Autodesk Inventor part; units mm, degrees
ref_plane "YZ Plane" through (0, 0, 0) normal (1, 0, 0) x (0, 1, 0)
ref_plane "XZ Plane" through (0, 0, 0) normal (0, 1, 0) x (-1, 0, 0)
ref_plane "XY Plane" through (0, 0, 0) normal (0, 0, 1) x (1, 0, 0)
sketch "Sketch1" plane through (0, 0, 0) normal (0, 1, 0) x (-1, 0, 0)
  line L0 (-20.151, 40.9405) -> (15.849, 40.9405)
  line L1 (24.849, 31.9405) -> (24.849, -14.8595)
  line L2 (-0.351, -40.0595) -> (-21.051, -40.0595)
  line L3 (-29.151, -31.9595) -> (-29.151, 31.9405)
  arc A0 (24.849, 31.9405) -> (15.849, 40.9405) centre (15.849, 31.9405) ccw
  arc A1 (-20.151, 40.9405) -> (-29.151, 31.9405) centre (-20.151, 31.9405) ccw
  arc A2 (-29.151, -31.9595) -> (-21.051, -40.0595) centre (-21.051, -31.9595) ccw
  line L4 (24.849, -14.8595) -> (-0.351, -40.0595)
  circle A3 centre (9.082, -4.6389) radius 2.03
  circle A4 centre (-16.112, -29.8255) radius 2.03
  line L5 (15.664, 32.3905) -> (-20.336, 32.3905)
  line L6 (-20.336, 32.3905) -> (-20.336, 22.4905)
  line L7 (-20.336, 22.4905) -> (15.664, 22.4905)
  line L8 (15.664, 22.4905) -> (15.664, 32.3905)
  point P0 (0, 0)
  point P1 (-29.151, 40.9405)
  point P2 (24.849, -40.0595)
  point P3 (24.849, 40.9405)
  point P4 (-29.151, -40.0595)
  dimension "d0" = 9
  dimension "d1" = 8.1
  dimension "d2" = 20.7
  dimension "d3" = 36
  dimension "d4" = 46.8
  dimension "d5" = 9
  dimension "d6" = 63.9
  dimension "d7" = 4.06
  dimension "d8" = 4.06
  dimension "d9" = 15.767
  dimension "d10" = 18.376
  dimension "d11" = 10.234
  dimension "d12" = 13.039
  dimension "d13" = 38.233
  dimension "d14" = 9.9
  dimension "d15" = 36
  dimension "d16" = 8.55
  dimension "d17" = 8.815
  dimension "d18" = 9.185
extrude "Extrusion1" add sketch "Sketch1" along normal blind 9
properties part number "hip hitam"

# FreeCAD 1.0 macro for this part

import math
import FreeCAD as App
import Part
import Sketcher
from FreeCAD import Vector
Q = App.Units.Quantity


def add_polygon(sketch, points):
    """Adds a closed chain of lines whose ends are joined by coincident constraints."""
    first, n = sketch.GeometryCount, len(points)
    for a, b in zip(points, points[1:] + points[:1]):
        sketch.addGeometry(Part.LineSegment(App.Vector(*a, 0), App.Vector(*b, 0)), False)
    for i in range(n):
        sketch.addConstraint(Sketcher.Constraint("Coincident", first + i, 2, first + (i + 1) % n, 1))

doc = App.newDocument("Part")
body = doc.addObject("PartDesign::Body", "Body")

sketch1 = doc.addObject("Sketcher::SketchObject", "Sketch")
body.addObject(sketch1)
sketch1.AttachmentSupport = (doc.XZ_Plane, [""])
sketch1.MapMode = "FlatFace"
sketch1.addGeometry(Part.LineSegment(Vector(-15.8, 40.9, 0), Vector(20.2, 40.9, 0)), False)
sketch1.addGeometry(Part.ArcOfCircle(Part.Circle(Vector(20.2, 31.9, 0), Vector(0, 0, 1), 9), math.radians(0), math.radians(90)), False)
sketch1.addGeometry(Part.LineSegment(Vector(29.2, 31.9, 0), Vector(29.2, -32, 0)), False)
sketch1.addGeometry(Part.ArcOfCircle(Part.Circle(Vector(21.1, -32, 0), Vector(0, 0, 1), 8.1), math.radians(-90), math.radians(0)), False)
sketch1.addGeometry(Part.LineSegment(Vector(21.1, -40.1, 0), Vector(0.4, -40.1, 0)), False)
sketch1.addGeometry(Part.LineSegment(Vector(0.4, -40.1, 0), Vector(-24.8, -14.9, 0)), False)
sketch1.addGeometry(Part.LineSegment(Vector(-24.8, -14.9, 0), Vector(-24.8, 31.9, 0)), False)
sketch1.addGeometry(Part.ArcOfCircle(Part.Circle(Vector(-15.8, 31.9, 0), Vector(0, 0, 1), 9), math.radians(90), math.radians(180)), False)
sketch1.addGeometry(Part.Circle(Vector(16.1, -29.8, 0), Vector(0, 0, 1), 2), False)
sketch1.addGeometry(Part.Circle(Vector(-9.1, -4.6, 0), Vector(0, 0, 1), 2), False)
add_polygon(sketch1, [(20.3, 32.4), (-15.7, 32.4), (-15.7, 22.5), (20.3, 22.5)])
sketch1.addConstraint([
    Sketcher.Constraint("Tangent", 0, 2, 1, 2),
    Sketcher.Constraint("Tangent", 1, 1, 2, 1),
    Sketcher.Constraint("Tangent", 2, 2, 3, 2),
    Sketcher.Constraint("Tangent", 3, 1, 4, 1),
    Sketcher.Constraint("Coincident", 4, 2, 5, 1),
    Sketcher.Constraint("Coincident", 5, 2, 6, 1),
    Sketcher.Constraint("Tangent", 6, 2, 7, 2),
    Sketcher.Constraint("Tangent", 7, 1, 0, 1),
    Sketcher.Constraint("Horizontal", 0),
    Sketcher.Constraint("Vertical", 2),
    Sketcher.Constraint("Horizontal", 4),
    Sketcher.Constraint("Vertical", 6),
    Sketcher.Constraint("Horizontal", 10),
    Sketcher.Constraint("Vertical", 11),
    Sketcher.Constraint("Horizontal", 12),
    Sketcher.Constraint("Vertical", 13),
    Sketcher.Constraint("Equal", 1, 7),
    Sketcher.Constraint("Equal", 8, 9),
    Sketcher.Constraint("Equal", 0, 10),
    Sketcher.Constraint("Radius", 1, Q("9 mm")),
    Sketcher.Constraint("Radius", 3, Q("8.1 mm")),
    Sketcher.Constraint("Diameter", 8, Q("4.06 mm")),
    Sketcher.Constraint("DistanceX", 0, 1, 0, 2, Q("36 mm")),
    Sketcher.Constraint("DistanceX", 4, 2, 4, 1, Q("20.7 mm")),
    Sketcher.Constraint("DistanceY", 2, 2, 2, 1, Q("63.9 mm")),
    Sketcher.Constraint("DistanceY", 6, 1, 6, 2, Q("46.8 mm")),
    Sketcher.Constraint("DistanceY", 11, 2, 11, 1, Q("9.9 mm")),
    Sketcher.Constraint("DistanceY", 10, 2, 7, 1, Q("8.55 mm")),
    Sketcher.Constraint("DistanceX", 9, 3, 1, 1, Q("38.233 mm")),
    Sketcher.Constraint("DistanceX", 8, 3, 1, 1, Q("13.039 mm")),
    Sketcher.Constraint("DistanceY", 3, 1, 8, 3, Q("10.234 mm")),
    Sketcher.Constraint("DistanceX", 6, 2, 10, 2, Q("9.185 mm")),
    Sketcher.Constraint("DistanceX", -1, 1, 1, 3, Q("20.151 mm")),
    Sketcher.Constraint("DistanceY", 9, 3, -1, 1, Q("4.639 mm")),
    Sketcher.Constraint("DistanceY", -1, 1, 1, 3, Q("31.9405 mm")),
])
pad1 = doc.addObject("PartDesign::Pad", "Pad")
body.addObject(pad1)
pad1.Profile = sketch1
pad1.Length = 9
pad1.Reversed = True

doc.recompute()
